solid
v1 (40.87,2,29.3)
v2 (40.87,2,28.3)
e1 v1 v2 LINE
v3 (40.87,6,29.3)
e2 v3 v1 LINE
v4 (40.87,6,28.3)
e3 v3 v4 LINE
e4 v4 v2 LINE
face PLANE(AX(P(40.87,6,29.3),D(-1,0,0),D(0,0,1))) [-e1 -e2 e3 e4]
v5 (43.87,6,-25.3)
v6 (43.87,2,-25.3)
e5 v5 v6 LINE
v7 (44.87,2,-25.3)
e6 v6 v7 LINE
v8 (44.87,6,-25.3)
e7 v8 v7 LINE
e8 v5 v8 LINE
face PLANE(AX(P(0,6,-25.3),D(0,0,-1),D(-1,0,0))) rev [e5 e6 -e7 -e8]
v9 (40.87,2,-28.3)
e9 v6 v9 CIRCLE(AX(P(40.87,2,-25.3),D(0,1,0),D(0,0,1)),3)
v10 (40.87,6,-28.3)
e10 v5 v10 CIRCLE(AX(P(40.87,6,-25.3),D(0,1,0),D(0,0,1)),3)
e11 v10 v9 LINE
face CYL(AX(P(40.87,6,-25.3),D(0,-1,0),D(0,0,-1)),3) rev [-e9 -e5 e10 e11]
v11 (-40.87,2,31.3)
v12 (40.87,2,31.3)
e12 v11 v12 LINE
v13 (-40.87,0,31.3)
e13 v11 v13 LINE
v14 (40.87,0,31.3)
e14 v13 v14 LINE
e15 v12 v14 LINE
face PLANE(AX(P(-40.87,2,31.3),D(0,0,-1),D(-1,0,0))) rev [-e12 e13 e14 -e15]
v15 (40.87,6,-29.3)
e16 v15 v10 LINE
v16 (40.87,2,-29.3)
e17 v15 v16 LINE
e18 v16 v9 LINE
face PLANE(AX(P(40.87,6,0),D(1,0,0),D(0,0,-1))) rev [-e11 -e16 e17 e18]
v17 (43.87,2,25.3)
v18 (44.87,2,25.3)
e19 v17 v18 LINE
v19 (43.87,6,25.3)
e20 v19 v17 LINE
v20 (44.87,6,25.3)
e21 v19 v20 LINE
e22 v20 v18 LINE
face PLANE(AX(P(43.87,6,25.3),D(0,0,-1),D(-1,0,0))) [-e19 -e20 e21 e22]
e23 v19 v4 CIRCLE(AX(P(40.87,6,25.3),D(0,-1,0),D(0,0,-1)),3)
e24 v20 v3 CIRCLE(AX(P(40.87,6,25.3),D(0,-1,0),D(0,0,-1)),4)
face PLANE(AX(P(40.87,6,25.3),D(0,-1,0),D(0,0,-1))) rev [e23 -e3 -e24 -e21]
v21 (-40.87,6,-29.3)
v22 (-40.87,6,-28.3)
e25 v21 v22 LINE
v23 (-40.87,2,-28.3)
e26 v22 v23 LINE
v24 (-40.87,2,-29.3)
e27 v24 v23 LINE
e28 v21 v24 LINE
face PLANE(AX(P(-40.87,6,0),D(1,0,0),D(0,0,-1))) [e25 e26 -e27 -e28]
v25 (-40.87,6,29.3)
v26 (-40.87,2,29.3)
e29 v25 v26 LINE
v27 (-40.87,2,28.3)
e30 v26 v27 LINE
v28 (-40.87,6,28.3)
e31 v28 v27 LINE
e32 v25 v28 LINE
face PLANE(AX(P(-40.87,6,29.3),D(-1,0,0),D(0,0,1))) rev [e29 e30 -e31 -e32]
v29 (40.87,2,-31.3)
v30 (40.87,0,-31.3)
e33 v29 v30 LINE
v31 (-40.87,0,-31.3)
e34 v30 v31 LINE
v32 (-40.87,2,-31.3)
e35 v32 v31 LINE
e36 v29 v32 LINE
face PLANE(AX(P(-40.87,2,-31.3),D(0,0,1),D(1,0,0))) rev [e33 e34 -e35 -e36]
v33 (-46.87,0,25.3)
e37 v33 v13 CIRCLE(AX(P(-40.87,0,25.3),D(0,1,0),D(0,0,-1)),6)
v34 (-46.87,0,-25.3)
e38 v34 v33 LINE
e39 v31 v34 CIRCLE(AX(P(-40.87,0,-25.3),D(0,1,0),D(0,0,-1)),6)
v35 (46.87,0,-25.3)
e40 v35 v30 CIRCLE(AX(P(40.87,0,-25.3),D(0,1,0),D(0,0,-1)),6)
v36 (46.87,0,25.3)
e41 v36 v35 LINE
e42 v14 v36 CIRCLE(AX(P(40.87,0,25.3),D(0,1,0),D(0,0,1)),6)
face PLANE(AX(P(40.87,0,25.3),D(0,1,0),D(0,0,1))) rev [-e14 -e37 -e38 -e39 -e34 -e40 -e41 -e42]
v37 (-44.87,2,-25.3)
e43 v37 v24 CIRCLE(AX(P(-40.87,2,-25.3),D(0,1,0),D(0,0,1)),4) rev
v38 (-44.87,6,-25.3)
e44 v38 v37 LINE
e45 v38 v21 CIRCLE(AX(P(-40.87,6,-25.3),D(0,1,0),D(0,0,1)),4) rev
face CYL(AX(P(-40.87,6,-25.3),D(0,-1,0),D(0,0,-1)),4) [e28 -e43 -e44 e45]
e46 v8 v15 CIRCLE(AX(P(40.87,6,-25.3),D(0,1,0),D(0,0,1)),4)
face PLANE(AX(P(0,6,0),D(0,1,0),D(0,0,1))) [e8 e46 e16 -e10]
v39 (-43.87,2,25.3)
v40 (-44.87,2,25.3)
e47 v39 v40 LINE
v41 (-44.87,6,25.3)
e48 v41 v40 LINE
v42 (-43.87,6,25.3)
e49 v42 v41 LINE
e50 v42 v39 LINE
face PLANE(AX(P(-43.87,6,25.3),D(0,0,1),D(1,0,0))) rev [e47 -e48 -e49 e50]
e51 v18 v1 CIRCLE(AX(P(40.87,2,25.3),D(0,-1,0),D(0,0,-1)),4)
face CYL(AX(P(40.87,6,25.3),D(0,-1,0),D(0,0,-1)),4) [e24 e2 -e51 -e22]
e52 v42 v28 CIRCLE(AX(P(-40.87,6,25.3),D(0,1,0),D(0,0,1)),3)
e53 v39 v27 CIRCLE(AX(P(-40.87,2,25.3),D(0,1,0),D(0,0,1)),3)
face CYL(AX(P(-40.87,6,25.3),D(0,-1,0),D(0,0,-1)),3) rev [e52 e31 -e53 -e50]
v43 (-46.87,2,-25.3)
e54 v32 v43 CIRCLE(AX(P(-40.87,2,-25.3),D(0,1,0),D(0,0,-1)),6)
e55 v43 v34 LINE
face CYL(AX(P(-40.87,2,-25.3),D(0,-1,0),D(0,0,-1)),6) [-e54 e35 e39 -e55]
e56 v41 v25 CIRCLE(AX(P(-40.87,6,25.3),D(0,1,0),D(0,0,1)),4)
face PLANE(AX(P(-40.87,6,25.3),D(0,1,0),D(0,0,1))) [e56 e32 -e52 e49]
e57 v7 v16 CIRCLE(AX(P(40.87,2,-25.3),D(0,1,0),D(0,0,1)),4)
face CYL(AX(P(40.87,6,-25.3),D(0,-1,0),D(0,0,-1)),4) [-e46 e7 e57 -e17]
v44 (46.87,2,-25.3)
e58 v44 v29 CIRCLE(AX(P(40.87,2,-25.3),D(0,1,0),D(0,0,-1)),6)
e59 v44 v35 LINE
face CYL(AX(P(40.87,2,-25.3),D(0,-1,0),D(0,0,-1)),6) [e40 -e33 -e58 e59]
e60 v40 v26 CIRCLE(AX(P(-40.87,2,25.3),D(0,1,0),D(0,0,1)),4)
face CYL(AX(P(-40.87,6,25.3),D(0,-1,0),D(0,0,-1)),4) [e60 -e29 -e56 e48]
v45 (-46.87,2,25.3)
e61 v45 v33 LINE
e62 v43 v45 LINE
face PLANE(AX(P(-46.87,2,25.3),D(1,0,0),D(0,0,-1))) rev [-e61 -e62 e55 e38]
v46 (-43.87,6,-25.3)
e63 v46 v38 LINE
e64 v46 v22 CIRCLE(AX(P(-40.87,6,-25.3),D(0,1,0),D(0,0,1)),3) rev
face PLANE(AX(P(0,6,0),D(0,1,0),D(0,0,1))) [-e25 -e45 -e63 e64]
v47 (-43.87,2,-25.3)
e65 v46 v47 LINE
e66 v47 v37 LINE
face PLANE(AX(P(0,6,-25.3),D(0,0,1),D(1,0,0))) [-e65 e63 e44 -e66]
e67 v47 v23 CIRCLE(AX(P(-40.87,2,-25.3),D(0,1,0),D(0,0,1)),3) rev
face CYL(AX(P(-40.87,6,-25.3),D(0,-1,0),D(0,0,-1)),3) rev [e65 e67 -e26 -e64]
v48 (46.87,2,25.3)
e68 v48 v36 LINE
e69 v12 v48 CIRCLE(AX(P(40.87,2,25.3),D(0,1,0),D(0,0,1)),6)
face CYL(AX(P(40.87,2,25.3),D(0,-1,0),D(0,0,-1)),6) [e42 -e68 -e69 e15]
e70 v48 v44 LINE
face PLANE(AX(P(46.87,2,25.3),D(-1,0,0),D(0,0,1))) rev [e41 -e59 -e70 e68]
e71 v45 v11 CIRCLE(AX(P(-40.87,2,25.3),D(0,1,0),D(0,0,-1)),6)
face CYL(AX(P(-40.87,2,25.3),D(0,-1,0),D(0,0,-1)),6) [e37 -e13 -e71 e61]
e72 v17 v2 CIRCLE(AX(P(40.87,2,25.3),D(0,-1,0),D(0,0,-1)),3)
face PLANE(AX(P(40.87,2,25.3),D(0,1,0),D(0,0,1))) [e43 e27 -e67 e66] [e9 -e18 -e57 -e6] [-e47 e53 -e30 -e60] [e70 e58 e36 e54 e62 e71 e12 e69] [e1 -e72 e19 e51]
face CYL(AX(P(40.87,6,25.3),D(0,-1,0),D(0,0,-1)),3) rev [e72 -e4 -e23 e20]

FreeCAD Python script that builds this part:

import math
import FreeCAD as App
import Part
import Sketcher

V = App.Vector
Q = App.Units.Quantity

doc = App.newDocument("Part")
params = doc.addObject("Spreadsheet::Sheet", "Params")
for row, (alias, value) in enumerate([
    ("sketch1_radius", "6 mm"),
    ("sketch1_height", "50.6 mm"),
    ("sketch1_width", "81.74 mm"),
    ("pad1_length", "2 mm"),
    ("sketch2_radius", "3 mm"),
    ("sketch2_radius2", "4 mm"),
    ("pad2_length", "4 mm"),
], start=1):
    params.set(f"A{row}", alias)
    params.set(f"B{row}", "=" + value)
    params.setAlias(f"B{row}", alias)

body = doc.addObject("PartDesign::Body", "Body")

# Sketch on XZ plane
sketch1 = doc.addObject("Sketcher::SketchObject", "Sketch")
body.addObject(sketch1)
sketch1.AttachmentSupport = (doc.XZ_Plane, [""])
sketch1.MapMode = "FlatFace"
sketch1.addGeometry(Part.LineSegment(V(-40.87, 31.3, 0), V(40.87, 31.3, 0)), False)
sketch1.addGeometry(Part.ArcOfCircle(Part.Circle(V(40.87, 25.3, 0), V(0, 0, 1), 6), math.radians(0), math.radians(90)), False)
sketch1.addGeometry(Part.LineSegment(V(46.87, 25.3, 0), V(46.87, -25.3, 0)), False)
sketch1.addGeometry(Part.ArcOfCircle(Part.Circle(V(40.87, -25.3, 0), V(0, 0, 1), 6), math.radians(-90), math.radians(0)), False)
sketch1.addGeometry(Part.LineSegment(V(40.87, -31.3, 0), V(-40.87, -31.3, 0)), False)
sketch1.addGeometry(Part.ArcOfCircle(Part.Circle(V(-40.87, -25.3, 0), V(0, 0, 1), 6), math.radians(180), math.radians(270)), False)
sketch1.addGeometry(Part.LineSegment(V(-46.87, -25.3, 0), V(-46.87, 25.3, 0)), False)
sketch1.addGeometry(Part.ArcOfCircle(Part.Circle(V(-40.87, 25.3, 0), V(0, 0, 1), 6), math.radians(90), math.radians(180)), False)
sketch1.addConstraint(Sketcher.Constraint("Tangent", 0, 2, 1, 2))
sketch1.addConstraint(Sketcher.Constraint("Tangent", 1, 1, 2, 1))
sketch1.addConstraint(Sketcher.Constraint("Tangent", 2, 2, 3, 2))
sketch1.addConstraint(Sketcher.Constraint("Tangent", 3, 1, 4, 1))
sketch1.addConstraint(Sketcher.Constraint("Tangent", 4, 2, 5, 2))
sketch1.addConstraint(Sketcher.Constraint("Tangent", 5, 1, 6, 1))
sketch1.addConstraint(Sketcher.Constraint("Tangent", 6, 2, 7, 2))
sketch1.addConstraint(Sketcher.Constraint("Tangent", 7, 1, 0, 1))
sketch1.addConstraint(Sketcher.Constraint("Horizontal", 0))
sketch1.addConstraint(Sketcher.Constraint("Vertical", 2))
sketch1.addConstraint(Sketcher.Constraint("Horizontal", 4))
sketch1.addConstraint(Sketcher.Constraint("Vertical", 6))
sketch1.addConstraint(Sketcher.Constraint("Equal", 1, 3))
sketch1.addConstraint(Sketcher.Constraint("Equal", 3, 5))
sketch1.addConstraint(Sketcher.Constraint("Equal", 5, 7))
sketch1.addConstraint(Sketcher.Constraint("Symmetric", 1, 3, 5, 3, -1, 1))
sketch1.addConstraint(Sketcher.Constraint("Radius", 1, Q("6 mm")))
sketch1.addConstraint(Sketcher.Constraint("DistanceY", 2, 2, 2, 1, Q("50.6 mm")))
sketch1.addConstraint(Sketcher.Constraint("DistanceX", 0, 1, 0, 2, Q("81.74 mm")))
sketch1.setExpression("Constraints[16]", "Params.sketch1_radius")
sketch1.setExpression("Constraints[17]", "Params.sketch1_height")
sketch1.setExpression("Constraints[18]", "Params.sketch1_width")
pad1 = doc.addObject("PartDesign::Pad", "Pad")
body.addObject(pad1)
pad1.Profile = sketch1
pad1.setExpression("Length", "Params.pad1_length")
pad1.Reversed = True

# Sketch on XZ plane
sketch2 = doc.addObject("Sketcher::SketchObject", "Sketch001")
body.addObject(sketch2)
sketch2.AttachmentSupport = (doc.XZ_Plane, [""])
sketch2.MapMode = "FlatFace"
sketch2.AttachmentOffset = App.Placement(V(0, 0, -2), App.Rotation())
sketch2.addGeometry(Part.ArcOfCircle(Part.Circle(V(40.87, -25.3, 0), V(0, 0, 1), 3), math.radians(-90), math.radians(0)), False)
sketch2.addGeometry(Part.LineSegment(V(43.87, -25.3, 0), V(44.87, -25.3, 0)), False)
sketch2.addGeometry(Part.ArcOfCircle(Part.Circle(V(40.87, -25.3, 0), V(0, 0, 1), 4), math.radians(-90), math.radians(0)), False)
sketch2.addGeometry(Part.LineSegment(V(40.87, -29.3, 0), V(40.87, -28.3, 0)), False)
sketch2.addGeometry(Part.LineSegment(V(-44.87, -25.3, 0), V(-43.87, -25.3, 0)), False)
sketch2.addGeometry(Part.ArcOfCircle(Part.Circle(V(-40.87, -25.3, 0), V(0, 0, 1), 3), math.radians(180), math.radians(270)), False)
sketch2.addGeometry(Part.LineSegment(V(-40.87, -28.3, 0), V(-40.87, -29.3, 0)), False)
sketch2.addGeometry(Part.ArcOfCircle(Part.Circle(V(-40.87, -25.3, 0), V(0, 0, 1), 4), math.radians(180), math.radians(270)), False)
sketch2.addGeometry(Part.ArcOfCircle(Part.Circle(V(-40.87, 25.3, 0), V(0, 0, 1), 4), math.radians(90), math.radians(180)), False)
sketch2.addGeometry(Part.LineSegment(V(-40.87, 29.3, 0), V(-40.87, 28.3, 0)), False)
sketch2.addGeometry(Part.ArcOfCircle(Part.Circle(V(-40.87, 25.3, 0), V(0, 0, 1), 3), math.radians(90), math.radians(180)), False)
sketch2.addGeometry(Part.LineSegment(V(-43.87, 25.3, 0), V(-44.87, 25.3, 0)), False)
sketch2.addGeometry(Part.ArcOfCircle(Part.Circle(V(40.87, 25.3, 0), V(0, 0, 1), 3), math.radians(0), math.radians(90)), False)
sketch2.addGeometry(Part.LineSegment(V(40.87, 28.3, 0), V(40.87, 29.3, 0)), False)
sketch2.addGeometry(Part.ArcOfCircle(Part.Circle(V(40.87, 25.3, 0), V(0, 0, 1), 4), math.radians(0), math.radians(90)), False)
sketch2.addGeometry(Part.LineSegment(V(44.87, 25.3, 0), V(43.87, 25.3, 0)), False)
sketch2.addConstraint(Sketcher.Constraint("Coincident", 0, 2, 1, 1))
sketch2.addConstraint(Sketcher.Constraint("Coincident", 1, 2, 2, 2))
sketch2.addConstraint(Sketcher.Constraint("Coincident", 2, 1, 3, 1))
sketch2.addConstraint(Sketcher.Constraint("Coincident", 3, 2, 0, 1))
sketch2.addConstraint(Sketcher.Constraint("Coincident", 4, 2, 5, 1))
sketch2.addConstraint(Sketcher.Constraint("Coincident", 5, 2, 6, 1))
sketch2.addConstraint(Sketcher.Constraint("Coincident", 6, 2, 7, 2))
sketch2.addConstraint(Sketcher.Constraint("Coincident", 7, 1, 4, 1))
sketch2.addConstraint(Sketcher.Constraint("Coincident", 8, 1, 9, 1))
sketch2.addConstraint(Sketcher.Constraint("Coincident", 9, 2, 10, 1))
sketch2.addConstraint(Sketcher.Constraint("Coincident", 10, 2, 11, 1))
sketch2.addConstraint(Sketcher.Constraint("Coincident", 11, 2, 8, 2))
sketch2.addConstraint(Sketcher.Constraint("Coincident", 12, 2, 13, 1))
sketch2.addConstraint(Sketcher.Constraint("Coincident", 13, 2, 14, 2))
sketch2.addConstraint(Sketcher.Constraint("Coincident", 14, 1, 15, 1))
sketch2.addConstraint(Sketcher.Constraint("Coincident", 15, 2, 12, 1))
sketch2.addConstraint(Sketcher.Constraint("Horizontal", 1))
sketch2.addConstraint(Sketcher.Constraint("Vertical", 3))
sketch2.addConstraint(Sketcher.Constraint("Horizontal", 4))
sketch2.addConstraint(Sketcher.Constraint("Vertical", 6))
sketch2.addConstraint(Sketcher.Constraint("Vertical", 9))
sketch2.addConstraint(Sketcher.Constraint("Horizontal", 11))
sketch2.addConstraint(Sketcher.Constraint("Vertical", 13))
sketch2.addConstraint(Sketcher.Constraint("Horizontal", 15))
sketch2.addConstraint(Sketcher.Constraint("Coincident", 2, 3, 0, 3))
sketch2.addConstraint(Sketcher.Constraint("Coincident", 7, 3, 5, 3))
sketch2.addConstraint(Sketcher.Constraint("Coincident", 10, 3, 8, 3))
sketch2.addConstraint(Sketcher.Constraint("Coincident", 14, 3, 12, 3))
sketch2.addConstraint(Sketcher.Constraint("Equal", 0, 5))
sketch2.addConstraint(Sketcher.Constraint("Equal", 2, 7))
sketch2.addConstraint(Sketcher.Constraint("Equal", 7, 8))
sketch2.addConstraint(Sketcher.Constraint("Equal", 5, 10))
sketch2.addConstraint(Sketcher.Constraint("Equal", 10, 12))
sketch2.addConstraint(Sketcher.Constraint("Equal", 8, 14))
sketch2.addConstraint(Sketcher.Constraint("Symmetric", 0, 3, 8, 3, -1, 1))
sketch2.addConstraint(Sketcher.Constraint("Symmetric", 5, 3, 12, 3, -1, 1))
sketch2.addConstraint(Sketcher.Constraint("Symmetric", 0, 3, 5, 3, -2))
sketch2.addConstraint(Sketcher.Constraint("Horizontal", 7, 3, 0, 2))
sketch2.addConstraint(Sketcher.Constraint("Horizontal", 1, 2, 4, 2))
sketch2.addConstraint(Sketcher.Constraint("Horizontal", 14, 3, 10, 2))
sketch2.addConstraint(Sketcher.Constraint("Horizontal", 11, 2, 14, 1))
sketch2.addConstraint(Sketcher.Constraint("Vertical", 14, 3, 2, 1))
sketch2.addConstraint(Sketcher.Constraint("Vertical", 10, 3, 5, 2))
sketch2.addConstraint(Sketcher.Constraint("Vertical", 6, 2, 8, 1))
sketch2.addConstraint(Sketcher.Constraint("Vertical", 3, 2, 12, 2))
sketch2.addConstraint(Sketcher.Constraint("Radius", 0, Q("3 mm")))
sketch2.addConstraint(Sketcher.Constraint("Radius", 2, Q("4 mm")))
sketch2.addConstraint(Sketcher.Constraint("DistanceY", 0, 3, -1, 1, Q("25.3 mm")))
sketch2.addConstraint(Sketcher.Constraint("DistanceX", -1, 1, 0, 3, Q("40.87 mm")))
sketch2.setExpression("Constraints[45]", "Params.sketch2_radius")
sketch2.setExpression("Constraints[46]", "Params.sketch2_radius2")
pad2 = doc.addObject("PartDesign::Pad", "Pad001")
body.addObject(pad2)
pad2.Profile = sketch2
pad2.setExpression("Length", "Params.pad2_length")
pad2.Reversed = True

doc.recompute()
